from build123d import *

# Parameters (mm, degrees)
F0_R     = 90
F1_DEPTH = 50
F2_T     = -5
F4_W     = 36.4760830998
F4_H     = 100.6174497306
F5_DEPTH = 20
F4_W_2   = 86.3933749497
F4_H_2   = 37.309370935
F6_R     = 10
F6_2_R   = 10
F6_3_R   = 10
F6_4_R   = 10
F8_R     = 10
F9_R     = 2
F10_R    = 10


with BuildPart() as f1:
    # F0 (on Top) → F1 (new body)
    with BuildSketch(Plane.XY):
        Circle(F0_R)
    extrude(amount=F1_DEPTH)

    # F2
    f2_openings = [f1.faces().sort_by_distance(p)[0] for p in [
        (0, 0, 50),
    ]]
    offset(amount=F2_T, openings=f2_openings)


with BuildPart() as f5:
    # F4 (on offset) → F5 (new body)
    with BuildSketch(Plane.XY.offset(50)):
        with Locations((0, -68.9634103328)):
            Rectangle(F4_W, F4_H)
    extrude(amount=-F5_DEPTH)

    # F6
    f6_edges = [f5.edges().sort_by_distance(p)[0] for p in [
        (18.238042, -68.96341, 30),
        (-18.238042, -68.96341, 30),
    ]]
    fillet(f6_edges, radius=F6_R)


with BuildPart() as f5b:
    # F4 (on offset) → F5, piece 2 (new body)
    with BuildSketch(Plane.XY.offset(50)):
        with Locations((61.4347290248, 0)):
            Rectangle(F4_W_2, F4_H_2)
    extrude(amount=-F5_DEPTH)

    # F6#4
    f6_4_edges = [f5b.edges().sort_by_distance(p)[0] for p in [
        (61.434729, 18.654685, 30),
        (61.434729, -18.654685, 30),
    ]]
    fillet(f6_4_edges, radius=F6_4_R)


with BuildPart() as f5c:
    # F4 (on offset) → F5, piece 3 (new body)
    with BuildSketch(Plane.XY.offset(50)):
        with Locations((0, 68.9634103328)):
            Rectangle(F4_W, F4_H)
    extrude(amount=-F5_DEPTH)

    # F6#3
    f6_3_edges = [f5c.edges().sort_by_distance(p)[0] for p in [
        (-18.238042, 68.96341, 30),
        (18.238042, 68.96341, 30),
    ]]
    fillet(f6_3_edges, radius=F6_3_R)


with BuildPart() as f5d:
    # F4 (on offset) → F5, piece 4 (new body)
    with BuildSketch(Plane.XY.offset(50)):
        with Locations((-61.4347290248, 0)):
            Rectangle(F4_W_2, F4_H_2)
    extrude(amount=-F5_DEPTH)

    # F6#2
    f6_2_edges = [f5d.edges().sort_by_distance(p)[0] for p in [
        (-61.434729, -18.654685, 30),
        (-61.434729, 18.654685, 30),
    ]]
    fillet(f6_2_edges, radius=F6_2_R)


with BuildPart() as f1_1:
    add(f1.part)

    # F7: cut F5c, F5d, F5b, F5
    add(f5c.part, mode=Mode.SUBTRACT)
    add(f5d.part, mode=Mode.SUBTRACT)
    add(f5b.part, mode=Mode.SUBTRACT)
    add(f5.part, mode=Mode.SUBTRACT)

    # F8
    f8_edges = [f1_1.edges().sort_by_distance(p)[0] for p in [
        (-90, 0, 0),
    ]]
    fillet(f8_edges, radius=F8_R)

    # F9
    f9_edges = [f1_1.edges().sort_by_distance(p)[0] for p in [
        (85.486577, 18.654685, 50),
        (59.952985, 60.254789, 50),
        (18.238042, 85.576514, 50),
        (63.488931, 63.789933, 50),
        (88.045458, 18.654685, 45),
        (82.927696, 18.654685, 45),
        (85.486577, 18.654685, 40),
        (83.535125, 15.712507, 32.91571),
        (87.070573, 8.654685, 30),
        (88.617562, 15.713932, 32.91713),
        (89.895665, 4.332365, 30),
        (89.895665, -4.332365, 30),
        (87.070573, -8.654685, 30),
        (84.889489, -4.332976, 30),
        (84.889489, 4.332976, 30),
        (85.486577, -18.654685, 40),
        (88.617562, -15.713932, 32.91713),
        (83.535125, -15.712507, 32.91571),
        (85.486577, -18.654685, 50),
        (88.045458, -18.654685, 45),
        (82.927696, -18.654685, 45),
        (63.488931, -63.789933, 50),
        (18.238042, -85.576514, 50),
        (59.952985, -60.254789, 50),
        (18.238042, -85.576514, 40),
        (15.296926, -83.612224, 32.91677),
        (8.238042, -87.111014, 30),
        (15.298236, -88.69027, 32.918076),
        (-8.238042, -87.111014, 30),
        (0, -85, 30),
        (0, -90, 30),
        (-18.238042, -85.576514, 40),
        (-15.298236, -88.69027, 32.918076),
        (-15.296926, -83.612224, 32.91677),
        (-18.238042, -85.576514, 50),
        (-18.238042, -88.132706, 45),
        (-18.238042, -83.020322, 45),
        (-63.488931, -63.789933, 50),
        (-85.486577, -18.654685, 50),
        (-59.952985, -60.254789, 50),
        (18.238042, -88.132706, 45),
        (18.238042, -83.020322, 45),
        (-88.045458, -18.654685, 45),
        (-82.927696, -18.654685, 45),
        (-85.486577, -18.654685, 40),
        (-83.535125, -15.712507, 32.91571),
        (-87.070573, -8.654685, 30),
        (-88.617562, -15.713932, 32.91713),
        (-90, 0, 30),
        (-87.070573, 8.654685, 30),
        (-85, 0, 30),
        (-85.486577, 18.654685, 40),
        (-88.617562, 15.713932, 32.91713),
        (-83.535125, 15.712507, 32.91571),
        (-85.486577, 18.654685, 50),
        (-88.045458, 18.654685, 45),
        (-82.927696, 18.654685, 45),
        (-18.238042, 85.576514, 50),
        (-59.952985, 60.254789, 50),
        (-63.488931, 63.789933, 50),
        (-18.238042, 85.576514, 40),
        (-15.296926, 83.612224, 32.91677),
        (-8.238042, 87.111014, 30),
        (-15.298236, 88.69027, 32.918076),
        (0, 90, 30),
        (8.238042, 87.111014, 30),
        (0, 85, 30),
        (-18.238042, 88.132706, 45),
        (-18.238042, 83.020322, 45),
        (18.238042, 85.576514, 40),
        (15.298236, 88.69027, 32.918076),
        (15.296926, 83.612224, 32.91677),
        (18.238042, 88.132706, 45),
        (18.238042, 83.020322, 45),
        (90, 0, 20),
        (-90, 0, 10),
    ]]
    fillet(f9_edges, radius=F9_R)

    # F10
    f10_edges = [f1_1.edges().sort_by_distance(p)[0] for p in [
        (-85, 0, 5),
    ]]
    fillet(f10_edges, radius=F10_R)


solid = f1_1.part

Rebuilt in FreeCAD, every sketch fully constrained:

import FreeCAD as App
import Part
import Sketcher

V = App.Vector


def edges_at(feature, points):
    """Names of the edges that pass closest to the given points."""
    edges = feature.Shape.Edges
    near = lambda p: min(range(len(edges)), key=lambda i: edges[i].distToShape(Part.Vertex(*p))[0])
    return sorted({f"Edge{near(p) + 1}" for p in points})


def faces_at(feature, points):
    """Names of the faces that lie closest to the given points."""
    faces = feature.Shape.Faces
    near = lambda p: min(range(len(faces)), key=lambda i: faces[i].distToShape(Part.Vertex(*p))[0])
    return sorted({f"Face{near(p) + 1}" for p in points})

doc = App.newDocument("Part")
body = doc.addObject("PartDesign::Body", "Body")

sketch1 = body.newObject("Sketcher::SketchObject", "Sketch")
sketch1.AttachmentSupport = (doc.getObject("XY_Plane"), [""])
sketch1.MapMode = "FlatFace"
sketch1.addGeometry(Part.Circle(V(0, 0, 0), V(0, 0, 1), 90), False)
sketch1.addConstraint(Sketcher.Constraint("Coincident", 0, 3, -1, 1))
sketch1.addConstraint(Sketcher.Constraint("Diameter", 0, 180.0))
pad1 = body.newObject("PartDesign::Pad", "Pad")
pad1.Profile = sketch1
pad1.Length = 50
doc.recompute()

thickness = body.newObject("PartDesign::Thickness", "Thickness")
thickness.Base = (pad1, faces_at(pad1, [(0, 0, 50)]))
thickness.Value = 5
thickness.Reversed = True
thickness.Join = "Arc"
body2 = doc.addObject("PartDesign::Body", "Body001")

sketch2 = body2.newObject("Sketcher::SketchObject", "Sketch001")
sketch2.AttachmentSupport = (doc.getObject("XY_Plane001"), [""])
sketch2.MapMode = "FlatFace"
sketch2.AttachmentOffset = App.Placement(V(0, 0, 50), App.Rotation())
sketch2.addGeometry(Part.LineSegment(V(-18, -19, 0), V(-18, -119, 0)), False)
sketch2.addGeometry(Part.LineSegment(V(-18, -119, 0), V(18, -119, 0)), False)
sketch2.addGeometry(Part.LineSegment(V(18, -119, 0), V(18, -19, 0)), False)
sketch2.addGeometry(Part.LineSegment(V(18, -19, 0), V(-18, -19, 0)), False)
sketch2.addConstraint(Sketcher.Constraint("Coincident", 0, 2, 1, 1))
sketch2.addConstraint(Sketcher.Constraint("Coincident", 1, 2, 2, 1))
sketch2.addConstraint(Sketcher.Constraint("Coincident", 2, 2, 3, 1))
sketch2.addConstraint(Sketcher.Constraint("Coincident", 3, 2, 0, 1))
sketch2.addConstraint(Sketcher.Constraint("Vertical", 0))
sketch2.addConstraint(Sketcher.Constraint("Horizontal", 1))
sketch2.addConstraint(Sketcher.Constraint("Vertical", 2))
sketch2.addConstraint(Sketcher.Constraint("Horizontal", 3))
sketch2.addConstraint(Sketcher.Constraint("DistanceY", 0, 2, 0, 1, 100.61745))
sketch2.addConstraint(Sketcher.Constraint("DistanceX", 1, 1, 1, 2, 36.476083))
sketch2.addConstraint(Sketcher.Constraint("DistanceX", 0, 2, -1, 1, 18.238042))
sketch2.addConstraint(Sketcher.Constraint("DistanceY", 0, 2, -1, 1, 119.272135))
pad2 = body2.newObject("PartDesign::Pad", "Pad001")
pad2.Profile = sketch2
pad2.Length = 20
pad2.Reversed = True
doc.recompute()

fillet = body2.newObject("PartDesign::Fillet", "Fillet")
fillet.Base = (pad2, edges_at(pad2, [(18.238, -68.963, 30), (-18.238, -68.963, 30)]))
fillet.Radius = 10
body3 = doc.addObject("PartDesign::Body", "Body002")

sketch3 = body3.newObject("Sketcher::SketchObject", "Sketch002")
sketch3.AttachmentSupport = (doc.getObject("XY_Plane002"), [""])
sketch3.MapMode = "FlatFace"
sketch3.AttachmentOffset = App.Placement(V(0, 0, 50), App.Rotation())
sketch3.addGeometry(Part.LineSegment(V(18, 19, 0), V(18, -19, 0)), False)
sketch3.addGeometry(Part.LineSegment(V(18, -19, 0), V(105, -19, 0)), False)
sketch3.addGeometry(Part.LineSegment(V(105, -19, 0), V(105, 19, 0)), False)
sketch3.addGeometry(Part.LineSegment(V(105, 19, 0), V(18, 19, 0)), False)
sketch3.addConstraint(Sketcher.Constraint("Coincident", 0, 2, 1, 1))
sketch3.addConstraint(Sketcher.Constraint("Coincident", 1, 2, 2, 1))
sketch3.addConstraint(Sketcher.Constraint("Coincident", 2, 2, 3, 1))
sketch3.addConstraint(Sketcher.Constraint("Coincident", 3, 2, 0, 1))
sketch3.addConstraint(Sketcher.Constraint("Vertical", 0))
sketch3.addConstraint(Sketcher.Constraint("Horizontal", 1))
sketch3.addConstraint(Sketcher.Constraint("Vertical", 2))
sketch3.addConstraint(Sketcher.Constraint("Horizontal", 3))
sketch3.addConstraint(Sketcher.Constraint("DistanceY", 0, 2, 0, 1, 37.309371))
sketch3.addConstraint(Sketcher.Constraint("DistanceX", 1, 1, 1, 2, 86.393375))
sketch3.addConstraint(Sketcher.Constraint("DistanceX", -1, 1, 0, 2, 18.238042))
sketch3.addConstraint(Sketcher.Constraint("DistanceY", 0, 2, -1, 1, 18.654685))
pad3 = body3.newObject("PartDesign::Pad", "Pad002")
pad3.Profile = sketch3
pad3.Length = 20
pad3.Reversed = True
doc.recompute()

fillet2 = body3.newObject("PartDesign::Fillet", "Fillet001")
fillet2.Base = (pad3, edges_at(pad3, [(61.435, 18.655, 30), (61.435, -18.655, 30)]))
fillet2.Radius = 10
body4 = doc.addObject("PartDesign::Body", "Body003")

sketch4 = body4.newObject("Sketcher::SketchObject", "Sketch003")
sketch4.AttachmentSupport = (doc.getObject("XY_Plane003"), [""])
sketch4.MapMode = "FlatFace"
sketch4.AttachmentOffset = App.Placement(V(0, 0, 50), App.Rotation())
sketch4.addGeometry(Part.LineSegment(V(-18, 119, 0), V(-18, 19, 0)), False)
sketch4.addGeometry(Part.LineSegment(V(-18, 19, 0), V(18, 19, 0)), False)
sketch4.addGeometry(Part.LineSegment(V(18, 19, 0), V(18, 119, 0)), False)
sketch4.addGeometry(Part.LineSegment(V(18, 119, 0), V(-18, 119, 0)), False)
sketch4.addConstraint(Sketcher.Constraint("Coincident", 0, 2, 1, 1))
sketch4.addConstraint(Sketcher.Constraint("Coincident", 1, 2, 2, 1))
sketch4.addConstraint(Sketcher.Constraint("Coincident", 2, 2, 3, 1))
sketch4.addConstraint(Sketcher.Constraint("Coincident", 3, 2, 0, 1))
sketch4.addConstraint(Sketcher.Constraint("Vertical", 0))
sketch4.addConstraint(Sketcher.Constraint("Horizontal", 1))
sketch4.addConstraint(Sketcher.Constraint("Vertical", 2))
sketch4.addConstraint(Sketcher.Constraint("Horizontal", 3))
sketch4.addConstraint(Sketcher.Constraint("DistanceY", 0, 2, 0, 1, 100.61745))
sketch4.addConstraint(Sketcher.Constraint("DistanceX", 1, 1, 1, 2, 36.476083))
sketch4.addConstraint(Sketcher.Constraint("DistanceX", 0, 2, -1, 1, 18.238042))
sketch4.addConstraint(Sketcher.Constraint("DistanceY", -1, 1, 0, 2, 18.654685))
pad4 = body4.newObject("PartDesign::Pad", "Pad003")
pad4.Profile = sketch4
pad4.Length = 20
pad4.Reversed = True
doc.recompute()

fillet3 = body4.newObject("PartDesign::Fillet", "Fillet002")
fillet3.Base = (pad4, edges_at(pad4, [(-18.238, 68.963, 30), (18.238, 68.963, 30)]))
fillet3.Radius = 10
body5 = doc.addObject("PartDesign::Body", "Body004")

sketch5 = body5.newObject("Sketcher::SketchObject", "Sketch004")
sketch5.AttachmentSupport = (doc.getObject("XY_Plane004"), [""])
sketch5.MapMode = "FlatFace"
sketch5.AttachmentOffset = App.Placement(V(0, 0, 50), App.Rotation())
sketch5.addGeometry(Part.LineSegment(V(-105, 19, 0), V(-105, -19, 0)), False)
sketch5.addGeometry(Part.LineSegment(V(-105, -19, 0), V(-18, -19, 0)), False)
sketch5.addGeometry(Part.LineSegment(V(-18, -19, 0), V(-18, 19, 0)), False)
sketch5.addGeometry(Part.LineSegment(V(-18, 19, 0), V(-105, 19, 0)), False)
sketch5.addConstraint(Sketcher.Constraint("Coincident", 0, 2, 1, 1))
sketch5.addConstraint(Sketcher.Constraint("Coincident", 1, 2, 2, 1))
sketch5.addConstraint(Sketcher.Constraint("Coincident", 2, 2, 3, 1))
sketch5.addConstraint(Sketcher.Constraint("Coincident", 3, 2, 0, 1))
sketch5.addConstraint(Sketcher.Constraint("Vertical", 0))
sketch5.addConstraint(Sketcher.Constraint("Horizontal", 1))
sketch5.addConstraint(Sketcher.Constraint("Vertical", 2))
sketch5.addConstraint(Sketcher.Constraint("Horizontal", 3))
sketch5.addConstraint(Sketcher.Constraint("DistanceY", 0, 2, 0, 1, 37.309371))
sketch5.addConstraint(Sketcher.Constraint("DistanceX", 1, 1, 1, 2, 86.393375))
sketch5.addConstraint(Sketcher.Constraint("DistanceX", 1, 2, -1, 1, 18.238042))
sketch5.addConstraint(Sketcher.Constraint("DistanceY", 0, 2, -1, 1, 18.654685))
pad5 = body5.newObject("PartDesign::Pad", "Pad004")
pad5.Profile = sketch5
pad5.Length = 20
pad5.Reversed = True
doc.recompute()

fillet4 = body5.newObject("PartDesign::Fillet", "Fillet003")
fillet4.Base = (pad5, edges_at(pad5, [(-61.435, -18.655, 30), (-61.435, 18.655, 30)]))
fillet4.Radius = 10
doc.recompute()

boolean = body.newObject("PartDesign::Boolean", "Boolean")
boolean.Type = "Cut"
boolean.addObjects([body4])
doc.recompute()

boolean2 = body.newObject("PartDesign::Boolean", "Boolean001")
boolean2.Type = "Cut"
boolean2.addObjects([body5])
doc.recompute()

boolean3 = body.newObject("PartDesign::Boolean", "Boolean002")
boolean3.Type = "Cut"
boolean3.addObjects([body3])
doc.recompute()

boolean4 = body.newObject("PartDesign::Boolean", "Boolean003")
boolean4.Type = "Cut"
boolean4.addObjects([body2])
doc.recompute()

fillet5 = body.newObject("PartDesign::Fillet", "Fillet004")
fillet5.Base = (boolean4, edges_at(boolean4, [(-90, 0, 0)]))
fillet5.Radius = 10
doc.recompute()

fillet6 = body.newObject("PartDesign::Fillet", "Fillet005")
fillet6.Base = (fillet5, edges_at(fillet5, [
    (85.487, 18.655, 50),
    (59.953, 60.255, 50),
    (18.238, 85.577, 50),
    (63.489, 63.79, 50),
    (88.045, 18.655, 45),
    (82.928, 18.655, 45),
    (85.487, 18.655, 40),
    (83.535, 15.713, 32.916),
    (87.071, 8.655, 30),
    (88.618, 15.714, 32.917),
    (89.896, 4.332, 30),
    (89.896, -4.332, 30),
    (87.071, -8.655, 30),
    (84.889, -4.333, 30),
    (84.889, 4.333, 30),
    (85.487, -18.655, 40),
    (88.618, -15.714, 32.917),
    (83.535, -15.713, 32.916),
    (85.487, -18.655, 50),
    (88.045, -18.655, 45),
    (82.928, -18.655, 45),
    (63.489, -63.79, 50),
    (18.238, -85.577, 50),
    (59.953, -60.255, 50),
    (18.238, -85.577, 40),
    (15.297, -83.612, 32.917),
    (8.238, -87.111, 30),
    (15.298, -88.69, 32.918),
    (-8.238, -87.111, 30),
    (0, -85, 30),
    (0, -90, 30),
    (-18.238, -85.577, 40),
    (-15.298, -88.69, 32.918),
    (-15.297, -83.612, 32.917),
    (-18.238, -85.577, 50),
    (-18.238, -88.133, 45),
    (-18.238, -83.02, 45),
    (-63.489, -63.79, 50),
    (-85.487, -18.655, 50),
    (-59.953, -60.255, 50),
    (18.238, -88.133, 45),
    (18.238, -83.02, 45),
    (-88.045, -18.655, 45),
    (-82.928, -18.655, 45),
    (-85.487, -18.655, 40),
    (-83.535, -15.713, 32.916),
    (-87.071, -8.655, 30),
    (-88.618, -15.714, 32.917),
    (-90, 0, 30),
    (-87.071, 8.655, 30),
    (-85, 0, 30),
    (-85.487, 18.655, 40),
    (-88.618, 15.714, 32.917),
    (-83.535, 15.713, 32.916),
    (-85.487, 18.655, 50),
    (-88.045, 18.655, 45),
    (-82.928, 18.655, 45),
    (-18.238, 85.577, 50),
    (-59.953, 60.255, 50),
    (-63.489, 63.79, 50),
    (-18.238, 85.577, 40),
    (-15.297, 83.612, 32.917),
    (-8.238, 87.111, 30),
    (-15.298, 88.69, 32.918),
    (0, 90, 30),
    (8.238, 87.111, 30),
    (0, 85, 30),
    (-18.238, 88.133, 45),
    (-18.238, 83.02, 45),
    (18.238, 85.577, 40),
    (15.298, 88.69, 32.918),
    (15.297, 83.612, 32.917),
    (18.238, 88.133, 45),
    (18.238, 83.02, 45),
    (90, 0, 20),
    (-90, 0, 10),
]))
fillet6.Radius = 2
doc.recompute()

fillet7 = body.newObject("PartDesign::Fillet", "Fillet006")
fillet7.Base = (fillet6, edges_at(fillet6, [(-85, 0, 5)]))
fillet7.Radius = 10

doc.recompute()
